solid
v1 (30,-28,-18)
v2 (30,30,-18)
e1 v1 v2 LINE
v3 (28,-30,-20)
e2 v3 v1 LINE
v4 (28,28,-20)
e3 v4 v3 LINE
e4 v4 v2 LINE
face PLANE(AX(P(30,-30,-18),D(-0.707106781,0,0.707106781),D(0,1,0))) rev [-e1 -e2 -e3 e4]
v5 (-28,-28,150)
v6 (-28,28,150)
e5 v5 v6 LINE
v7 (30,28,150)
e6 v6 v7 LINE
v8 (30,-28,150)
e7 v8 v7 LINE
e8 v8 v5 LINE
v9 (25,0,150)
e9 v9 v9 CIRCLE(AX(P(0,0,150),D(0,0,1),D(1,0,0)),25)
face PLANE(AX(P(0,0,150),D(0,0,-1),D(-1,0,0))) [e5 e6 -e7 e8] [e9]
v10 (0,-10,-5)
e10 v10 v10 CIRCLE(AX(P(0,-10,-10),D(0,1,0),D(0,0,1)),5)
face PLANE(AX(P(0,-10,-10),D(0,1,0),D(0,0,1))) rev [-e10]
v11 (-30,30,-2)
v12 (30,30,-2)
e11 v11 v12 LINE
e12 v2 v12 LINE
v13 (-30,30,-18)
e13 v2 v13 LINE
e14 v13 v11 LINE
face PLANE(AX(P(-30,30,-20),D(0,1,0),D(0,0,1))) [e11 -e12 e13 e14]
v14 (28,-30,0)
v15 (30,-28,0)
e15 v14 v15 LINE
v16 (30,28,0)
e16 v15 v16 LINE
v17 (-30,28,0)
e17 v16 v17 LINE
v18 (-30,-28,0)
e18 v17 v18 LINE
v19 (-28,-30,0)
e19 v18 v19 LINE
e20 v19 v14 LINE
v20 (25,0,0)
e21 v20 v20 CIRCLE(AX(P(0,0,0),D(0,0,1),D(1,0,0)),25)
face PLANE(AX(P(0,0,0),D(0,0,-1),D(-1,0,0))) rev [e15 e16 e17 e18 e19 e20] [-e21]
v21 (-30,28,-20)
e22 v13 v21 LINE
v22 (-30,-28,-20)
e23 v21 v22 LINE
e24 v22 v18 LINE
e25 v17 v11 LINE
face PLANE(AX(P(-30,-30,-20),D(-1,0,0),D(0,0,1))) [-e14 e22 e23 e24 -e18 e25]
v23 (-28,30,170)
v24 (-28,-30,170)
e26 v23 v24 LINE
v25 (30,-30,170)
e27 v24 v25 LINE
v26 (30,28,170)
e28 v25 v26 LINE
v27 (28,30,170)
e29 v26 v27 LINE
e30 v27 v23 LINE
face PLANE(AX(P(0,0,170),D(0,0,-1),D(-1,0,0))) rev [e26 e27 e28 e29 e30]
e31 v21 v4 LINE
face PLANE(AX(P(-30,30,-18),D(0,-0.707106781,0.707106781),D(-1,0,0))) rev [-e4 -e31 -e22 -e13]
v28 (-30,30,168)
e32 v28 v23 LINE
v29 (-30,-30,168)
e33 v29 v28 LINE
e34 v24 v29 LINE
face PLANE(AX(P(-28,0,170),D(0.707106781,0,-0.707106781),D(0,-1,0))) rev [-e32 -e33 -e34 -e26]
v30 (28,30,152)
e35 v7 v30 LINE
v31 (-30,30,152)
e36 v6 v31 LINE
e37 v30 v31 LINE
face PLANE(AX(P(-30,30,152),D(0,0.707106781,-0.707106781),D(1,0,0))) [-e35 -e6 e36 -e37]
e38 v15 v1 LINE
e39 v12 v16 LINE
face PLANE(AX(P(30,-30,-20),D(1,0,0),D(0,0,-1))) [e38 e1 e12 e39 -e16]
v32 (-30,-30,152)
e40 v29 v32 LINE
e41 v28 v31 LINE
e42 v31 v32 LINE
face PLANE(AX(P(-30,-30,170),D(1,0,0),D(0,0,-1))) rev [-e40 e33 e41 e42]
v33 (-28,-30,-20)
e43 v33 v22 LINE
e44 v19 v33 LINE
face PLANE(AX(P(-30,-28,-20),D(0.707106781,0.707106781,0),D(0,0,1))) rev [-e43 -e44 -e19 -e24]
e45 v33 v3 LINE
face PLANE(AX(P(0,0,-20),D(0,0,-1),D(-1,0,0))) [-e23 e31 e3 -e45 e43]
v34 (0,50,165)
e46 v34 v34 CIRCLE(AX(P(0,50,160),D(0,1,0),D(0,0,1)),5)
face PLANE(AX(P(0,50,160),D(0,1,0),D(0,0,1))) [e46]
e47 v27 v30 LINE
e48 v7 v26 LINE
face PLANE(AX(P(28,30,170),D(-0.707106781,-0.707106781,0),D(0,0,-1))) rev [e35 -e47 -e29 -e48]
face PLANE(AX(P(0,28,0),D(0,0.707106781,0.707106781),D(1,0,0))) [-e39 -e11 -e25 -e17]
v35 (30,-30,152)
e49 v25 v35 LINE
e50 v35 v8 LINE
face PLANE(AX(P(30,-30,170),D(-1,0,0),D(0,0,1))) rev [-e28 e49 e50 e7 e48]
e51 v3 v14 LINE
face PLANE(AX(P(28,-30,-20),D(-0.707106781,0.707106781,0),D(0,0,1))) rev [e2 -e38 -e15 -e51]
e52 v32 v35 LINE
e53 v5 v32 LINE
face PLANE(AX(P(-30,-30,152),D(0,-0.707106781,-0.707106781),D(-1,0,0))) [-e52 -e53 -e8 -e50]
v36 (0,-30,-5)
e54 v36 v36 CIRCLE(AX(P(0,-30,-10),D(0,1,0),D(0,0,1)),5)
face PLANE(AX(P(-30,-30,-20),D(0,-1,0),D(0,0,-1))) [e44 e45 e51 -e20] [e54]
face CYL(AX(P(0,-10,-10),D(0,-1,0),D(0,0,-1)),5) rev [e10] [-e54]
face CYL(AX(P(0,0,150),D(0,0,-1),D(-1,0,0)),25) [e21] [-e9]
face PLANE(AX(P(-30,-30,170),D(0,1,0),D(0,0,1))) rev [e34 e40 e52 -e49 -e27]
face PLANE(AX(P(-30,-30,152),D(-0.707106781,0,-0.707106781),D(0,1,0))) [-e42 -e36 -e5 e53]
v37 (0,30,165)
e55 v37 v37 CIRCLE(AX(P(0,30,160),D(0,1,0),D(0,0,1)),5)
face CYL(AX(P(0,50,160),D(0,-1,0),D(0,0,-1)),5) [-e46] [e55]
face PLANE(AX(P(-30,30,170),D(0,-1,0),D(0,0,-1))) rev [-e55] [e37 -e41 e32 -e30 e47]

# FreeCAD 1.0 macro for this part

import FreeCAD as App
import Part
import Sketcher


def edges_at(feature, points):
    """Names of the edges that pass closest to the given points."""
    edges = feature.Shape.Edges
    near = lambda p: min(range(len(edges)), key=lambda i: edges[i].distToShape(Part.Vertex(*p))[0])
    return sorted({f"Edge{near(p) + 1}" for p in points})

doc = App.newDocument("Part")
body = doc.addObject("PartDesign::Body", "Body")

# Sketch on XY plane
sketch1 = body.newObject("Sketcher::SketchObject", "Sketch")
sketch1.AttachmentSupport = (doc.getObject("XY_Plane"), [""])
sketch1.MapMode = "FlatFace"
sketch1.addGeometry(Part.Circle(App.Vector(0, 0, 0), App.Vector(0, 0, 1), 25), False)
sketch1.addConstraint([
    Sketcher.Constraint("Coincident", 0, 3, -1, 1),
    Sketcher.Constraint("Diameter", 0, 50.0),
])
pad1 = body.newObject("PartDesign::Pad", "Pad")
pad1.Profile = sketch1
pad1.Length = 150

# Sketch on XY plane
sketch2 = body.newObject("Sketcher::SketchObject", "Sketch001")
sketch2.AttachmentSupport = (doc.getObject("XY_Plane"), [""])
sketch2.MapMode = "FlatFace"
sketch2.addGeometry([
    Part.LineSegment(App.Vector(-30, 30, 0), App.Vector(-30, -30, 0)),
    Part.LineSegment(App.Vector(-30, -30, 0), App.Vector(30, -30, 0)),
    Part.LineSegment(App.Vector(30, -30, 0), App.Vector(30, 30, 0)),
    Part.LineSegment(App.Vector(30, 30, 0), App.Vector(-30, 30, 0)),
], False)
sketch2.addConstraint([
    Sketcher.Constraint("Coincident", 0, 2, 1, 1),
    Sketcher.Constraint("Coincident", 1, 2, 2, 1),
    Sketcher.Constraint("Coincident", 2, 2, 3, 1),
    Sketcher.Constraint("Coincident", 3, 2, 0, 1),
    Sketcher.Constraint("Vertical", 0),
    Sketcher.Constraint("Horizontal", 1),
    Sketcher.Constraint("Vertical", 2),
    Sketcher.Constraint("Horizontal", 3),
    Sketcher.Constraint("Symmetric", 0, 2, 2, 2, -1, 1),
    Sketcher.Constraint("Equal", 3, 0),
    Sketcher.Constraint("DistanceX", 1, 1, 1, 2, 60.0),
])
pad2 = body.newObject("PartDesign::Pad", "Pad001")
pad2.Profile = sketch2
pad2.Length = 20
pad2.Reversed = True

# Sketch on XY plane
sketch3 = body.newObject("Sketcher::SketchObject", "Sketch002")
sketch3.AttachmentSupport = (doc.getObject("XY_Plane"), [""])
sketch3.MapMode = "FlatFace"
sketch3.AttachmentOffset = App.Placement(App.Vector(0, 0, 150), App.Rotation())
sketch3.addGeometry([
    Part.LineSegment(App.Vector(-30, 30, 0), App.Vector(-30, -30, 0)),
    Part.LineSegment(App.Vector(-30, -30, 0), App.Vector(30, -30, 0)),
    Part.LineSegment(App.Vector(30, -30, 0), App.Vector(30, 30, 0)),
    Part.LineSegment(App.Vector(30, 30, 0), App.Vector(-30, 30, 0)),
], False)
sketch3.addConstraint([
    Sketcher.Constraint("Coincident", 0, 2, 1, 1),
    Sketcher.Constraint("Coincident", 1, 2, 2, 1),
    Sketcher.Constraint("Coincident", 2, 2, 3, 1),
    Sketcher.Constraint("Coincident", 3, 2, 0, 1),
    Sketcher.Constraint("Vertical", 0),
    Sketcher.Constraint("Horizontal", 1),
    Sketcher.Constraint("Vertical", 2),
    Sketcher.Constraint("Horizontal", 3),
    Sketcher.Constraint("Symmetric", 0, 2, 2, 2, -1, 1),
    Sketcher.Constraint("Equal", 3, 0),
    Sketcher.Constraint("DistanceX", 1, 1, 1, 2, 60.0),
])
pad3 = body.newObject("PartDesign::Pad", "Pad002")
pad3.Profile = sketch3
pad3.Length = 20

# Sketch on XZ plane
sketch4 = body.newObject("Sketcher::SketchObject", "Sketch003")
sketch4.AttachmentSupport = (doc.getObject("XZ_Plane"), [""])
sketch4.MapMode = "FlatFace"
sketch4.AttachmentOffset = App.Placement(App.Vector(0, 0, 30), App.Rotation())
sketch4.addGeometry(Part.Circle(App.Vector(0, -10, 0), App.Vector(0, 0, 1), 5), False)
sketch4.addConstraint([
    Sketcher.Constraint("PointOnObject", 0, 3, -2),
    Sketcher.Constraint("Diameter", 0, 10.0),
    Sketcher.Constraint("DistanceY", 0, 3, -1, 1, 10.0),
])
pocket1 = body.newObject("PartDesign::Pocket", "Pocket")
pocket1.Profile = sketch4
pocket1.Length = 20

# Sketch on XZ plane
sketch5 = body.newObject("Sketcher::SketchObject", "Sketch004")
sketch5.AttachmentSupport = (doc.getObject("XZ_Plane"), [""])
sketch5.MapMode = "FlatFace"
sketch5.AttachmentOffset = App.Placement(App.Vector(0, 0, -30), App.Rotation())
sketch5.addGeometry(Part.Circle(App.Vector(0, 160, 0), App.Vector(0, 0, 1), 5), False)
sketch5.addConstraint([
    Sketcher.Constraint("PointOnObject", 0, 3, -2),
    Sketcher.Constraint("Diameter", 0, 10.0),
    Sketcher.Constraint("DistanceY", -1, 1, 0, 3, 160.0),
])
pad4 = body.newObject("PartDesign::Pad", "Pad003")
pad4.Profile = sketch5
pad4.Length = 20
pad4.Reversed = True
doc.recompute()

chamfer = body.newObject("PartDesign::Chamfer", "Chamfer")
chamfer.Base = (pad4, edges_at(pad4, [
    (30, 0, -20),
    (30, -30, -10),
    (-30, -30, -10),
    (-30, 30, -10),
]))
chamfer.Size = 2
doc.recompute()

chamfer2 = body.newObject("PartDesign::Chamfer", "Chamfer001")
chamfer2.Base = (chamfer, edges_at(chamfer, [
    (30, 30, 160),
    (-30, 30, 160),
    (0, -30, 150),
    (-30, 0, 170),
]))
chamfer2.Size = 2

# Sketch on XY plane
sketch6 = body.newObject("Sketcher::SketchObject", "Sketch005")
sketch6.AttachmentSupport = (doc.getObject("XY_Plane"), [""])
sketch6.MapMode = "FlatFace"
sketch6.addGeometry(Part.Circle(App.Vector(0, 0, 0), App.Vector(0, 0, 1), 25), False)
sketch6.addConstraint([
    Sketcher.Constraint("Coincident", 0, 3, -1, 1),
    Sketcher.Constraint("Diameter", 0, 50.0),
])
pad5 = body.newObject("PartDesign::Pad", "Pad004")
pad5.Profile = sketch6
pad5.Length = 150

# Sketch on XY plane
sketch7 = body.newObject("Sketcher::SketchObject", "Sketch006")
sketch7.AttachmentSupport = (doc.getObject("XY_Plane"), [""])
sketch7.MapMode = "FlatFace"
sketch7.addGeometry([
    Part.LineSegment(App.Vector(-30, 30, 0), App.Vector(-30, -30, 0)),
    Part.LineSegment(App.Vector(-30, -30, 0), App.Vector(30, -30, 0)),
    Part.LineSegment(App.Vector(30, -30, 0), App.Vector(30, 30, 0)),
    Part.LineSegment(App.Vector(30, 30, 0), App.Vector(-30, 30, 0)),
], False)
sketch7.addConstraint([
    Sketcher.Constraint("Coincident", 0, 2, 1, 1),
    Sketcher.Constraint("Coincident", 1, 2, 2, 1),
    Sketcher.Constraint("Coincident", 2, 2, 3, 1),
    Sketcher.Constraint("Coincident", 3, 2, 0, 1),
    Sketcher.Constraint("Vertical", 0),
    Sketcher.Constraint("Horizontal", 1),
    Sketcher.Constraint("Vertical", 2),
    Sketcher.Constraint("Horizontal", 3),
    Sketcher.Constraint("Symmetric", 0, 2, 2, 2, -1, 1),
    Sketcher.Constraint("Equal", 3, 0),
    Sketcher.Constraint("DistanceX", 1, 1, 1, 2, 60.0),
])
pad6 = body.newObject("PartDesign::Pad", "Pad005")
pad6.Profile = sketch7
pad6.Length = 20
pad6.Reversed = True

# Sketch on XY plane
sketch8 = body.newObject("Sketcher::SketchObject", "Sketch007")
sketch8.AttachmentSupport = (doc.getObject("XY_Plane"), [""])
sketch8.MapMode = "FlatFace"
sketch8.AttachmentOffset = App.Placement(App.Vector(0, 0, 150), App.Rotation())
sketch8.addGeometry([
    Part.LineSegment(App.Vector(-30, 30, 0), App.Vector(-30, -30, 0)),
    Part.LineSegment(App.Vector(-30, -30, 0), App.Vector(30, -30, 0)),
    Part.LineSegment(App.Vector(30, -30, 0), App.Vector(30, 30, 0)),
    Part.LineSegment(App.Vector(30, 30, 0), App.Vector(-30, 30, 0)),
], False)
sketch8.addConstraint([
    Sketcher.Constraint("Coincident", 0, 2, 1, 1),
    Sketcher.Constraint("Coincident", 1, 2, 2, 1),
    Sketcher.Constraint("Coincident", 2, 2, 3, 1),
    Sketcher.Constraint("Coincident", 3, 2, 0, 1),
    Sketcher.Constraint("Vertical", 0),
    Sketcher.Constraint("Horizontal", 1),
    Sketcher.Constraint("Vertical", 2),
    Sketcher.Constraint("Horizontal", 3),
    Sketcher.Constraint("Symmetric", 0, 2, 2, 2, -1, 1),
    Sketcher.Constraint("Equal", 3, 0),
    Sketcher.Constraint("DistanceX", 1, 1, 1, 2, 60.0),
])
pad7 = body.newObject("PartDesign::Pad", "Pad006")
pad7.Profile = sketch8
pad7.Length = 20

# Sketch on XZ plane
sketch9 = body.newObject("Sketcher::SketchObject", "Sketch008")
sketch9.AttachmentSupport = (doc.getObject("XZ_Plane"), [""])
sketch9.MapMode = "FlatFace"
sketch9.AttachmentOffset = App.Placement(App.Vector(0, 0, 30), App.Rotation())
sketch9.addGeometry(Part.Circle(App.Vector(0, -10, 0), App.Vector(0, 0, 1), 5), False)
sketch9.addConstraint([
    Sketcher.Constraint("PointOnObject", 0, 3, -2),
    Sketcher.Constraint("Diameter", 0, 10.0),
    Sketcher.Constraint("DistanceY", 0, 3, -1, 1, 10.0),
])
pocket2 = body.newObject("PartDesign::Pocket", "Pocket001")
pocket2.Profile = sketch9
pocket2.Length = 20

# Sketch on XZ plane
sketch10 = body.newObject("Sketcher::SketchObject", "Sketch009")
sketch10.AttachmentSupport = (doc.getObject("XZ_Plane"), [""])
sketch10.MapMode = "FlatFace"
sketch10.AttachmentOffset = App.Placement(App.Vector(0, 0, -30), App.Rotation())
sketch10.addGeometry(Part.Circle(App.Vector(0, 160, 0), App.Vector(0, 0, 1), 5), False)
sketch10.addConstraint([
    Sketcher.Constraint("PointOnObject", 0, 3, -2),
    Sketcher.Constraint("Diameter", 0, 10.0),
    Sketcher.Constraint("DistanceY", -1, 1, 0, 3, 160.0),
])
pad8 = body.newObject("PartDesign::Pad", "Pad007")
pad8.Profile = sketch10
pad8.Length = 20
pad8.Reversed = True
doc.recompute()

chamfer3 = body.newObject("PartDesign::Chamfer", "Chamfer002")
chamfer3.Base = (pad8, edges_at(pad8, [
    (-30, 0, 0),
    (-30, 0, -20),
    (0, -30, -20),
    (30, -30, -10),
    (30, 0, -20),
]))
chamfer3.Size = 2
doc.recompute()

chamfer4 = body.newObject("PartDesign::Chamfer", "Chamfer003")
chamfer4.Base = (chamfer3, edges_at(chamfer3, [
    (0, -30, 150),
    (30, 30, 160),
    (0, 30, 170),
    (-30, 0, 150),
]))
chamfer4.Size = 2

# Sketch on XY plane
sketch11 = body.newObject("Sketcher::SketchObject", "Sketch010")
sketch11.AttachmentSupport = (doc.getObject("XY_Plane"), [""])
sketch11.MapMode = "FlatFace"
sketch11.addGeometry(Part.Circle(App.Vector(0, 0, 0), App.Vector(0, 0, 1), 25), False)
sketch11.addConstraint([
    Sketcher.Constraint("Coincident", 0, 3, -1, 1),
    Sketcher.Constraint("Diameter", 0, 50.0),
])
pad9 = body.newObject("PartDesign::Pad", "Pad008")
pad9.Profile = sketch11
pad9.Length = 150

# Sketch on XY plane
sketch12 = body.newObject("Sketcher::SketchObject", "Sketch011")
sketch12.AttachmentSupport = (doc.getObject("XY_Plane"), [""])
sketch12.MapMode = "FlatFace"
sketch12.addGeometry([
    Part.LineSegment(App.Vector(-30, 30, 0), App.Vector(-30, -30, 0)),
    Part.LineSegment(App.Vector(-30, -30, 0), App.Vector(30, -30, 0)),
    Part.LineSegment(App.Vector(30, -30, 0), App.Vector(30, 30, 0)),
    Part.LineSegment(App.Vector(30, 30, 0), App.Vector(-30, 30, 0)),
], False)
sketch12.addConstraint([
    Sketcher.Constraint("Coincident", 0, 2, 1, 1),
    Sketcher.Constraint("Coincident", 1, 2, 2, 1),
    Sketcher.Constraint("Coincident", 2, 2, 3, 1),
    Sketcher.Constraint("Coincident", 3, 2, 0, 1),
    Sketcher.Constraint("Vertical", 0),
    Sketcher.Constraint("Horizontal", 1),
    Sketcher.Constraint("Vertical", 2),
    Sketcher.Constraint("Horizontal", 3),
    Sketcher.Constraint("Symmetric", 0, 2, 2, 2, -1, 1),
    Sketcher.Constraint("Equal", 3, 0),
    Sketcher.Constraint("DistanceX", 1, 1, 1, 2, 60.0),
])
pad10 = body.newObject("PartDesign::Pad", "Pad009")
pad10.Profile = sketch12
pad10.Length = 20
pad10.Reversed = True

# Sketch on XY plane
sketch13 = body.newObject("Sketcher::SketchObject", "Sketch012")
sketch13.AttachmentSupport = (doc.getObject("XY_Plane"), [""])
sketch13.MapMode = "FlatFace"
sketch13.AttachmentOffset = App.Placement(App.Vector(0, 0, 150), App.Rotation())
sketch13.addGeometry([
    Part.LineSegment(App.Vector(-30, 30, 0), App.Vector(-30, -30, 0)),
    Part.LineSegment(App.Vector(-30, -30, 0), App.Vector(30, -30, 0)),
    Part.LineSegment(App.Vector(30, -30, 0), App.Vector(30, 30, 0)),
    Part.LineSegment(App.Vector(30, 30, 0), App.Vector(-30, 30, 0)),
], False)
sketch13.addConstraint([
    Sketcher.Constraint("Coincident", 0, 2, 1, 1),
    Sketcher.Constraint("Coincident", 1, 2, 2, 1),
    Sketcher.Constraint("Coincident", 2, 2, 3, 1),
    Sketcher.Constraint("Coincident", 3, 2, 0, 1),
    Sketcher.Constraint("Vertical", 0),
    Sketcher.Constraint("Horizontal", 1),
    Sketcher.Constraint("Vertical", 2),
    Sketcher.Constraint("Horizontal", 3),
    Sketcher.Constraint("Symmetric", 0, 2, 2, 2, -1, 1),
    Sketcher.Constraint("Equal", 3, 0),
    Sketcher.Constraint("DistanceX", 1, 1, 1, 2, 60.0),
])
pad11 = body.newObject("PartDesign::Pad", "Pad010")
pad11.Profile = sketch13
pad11.Length = 20

# Sketch on XZ plane
sketch14 = body.newObject("Sketcher::SketchObject", "Sketch013")
sketch14.AttachmentSupport = (doc.getObject("XZ_Plane"), [""])
sketch14.MapMode = "FlatFace"
sketch14.AttachmentOffset = App.Placement(App.Vector(0, 0, 30), App.Rotation())
sketch14.addGeometry(Part.Circle(App.Vector(0, -10, 0), App.Vector(0, 0, 1), 5), False)
sketch14.addConstraint([
    Sketcher.Constraint("PointOnObject", 0, 3, -2),
    Sketcher.Constraint("Diameter", 0, 10.0),
    Sketcher.Constraint("DistanceY", 0, 3, -1, 1, 10.0),
])
pocket3 = body.newObject("PartDesign::Pocket", "Pocket002")
pocket3.Profile = sketch14
pocket3.Length = 20

# Sketch on XZ plane
sketch15 = body.newObject("Sketcher::SketchObject", "Sketch014")
sketch15.AttachmentSupport = (doc.getObject("XZ_Plane"), [""])
sketch15.MapMode = "FlatFace"
sketch15.AttachmentOffset = App.Placement(App.Vector(0, 0, -30), App.Rotation())
sketch15.addGeometry(Part.Circle(App.Vector(0, 160, 0), App.Vector(0, 0, 1), 5), False)
sketch15.addConstraint([
    Sketcher.Constraint("PointOnObject", 0, 3, -2),
    Sketcher.Constraint("Diameter", 0, 10.0),
    Sketcher.Constraint("DistanceY", -1, 1, 0, 3, 160.0),
])
pad12 = body.newObject("PartDesign::Pad", "Pad011")
pad12.Profile = sketch15
pad12.Length = 20
pad12.Reversed = True
doc.recompute()

chamfer5 = body.newObject("PartDesign::Chamfer", "Chamfer004")
chamfer5.Base = (pad12, edges_at(pad12, [
    (-30, -30, -10),
    (0, 30, -20),
    (30, 0, -20),
    (30, -30, -10),
    (0, 30, 0),
]))
chamfer5.Size = 2
doc.recompute()

chamfer6 = body.newObject("PartDesign::Chamfer", "Chamfer005")
chamfer6.Base = (chamfer5, edges_at(chamfer5, [
    (-30, 0, 170),
    (0, 30, 150),
    (30, 30, 160),
    (-30, 0, 150),
    (0, -30, 150),
]))
chamfer6.Size = 2

doc.recompute()
